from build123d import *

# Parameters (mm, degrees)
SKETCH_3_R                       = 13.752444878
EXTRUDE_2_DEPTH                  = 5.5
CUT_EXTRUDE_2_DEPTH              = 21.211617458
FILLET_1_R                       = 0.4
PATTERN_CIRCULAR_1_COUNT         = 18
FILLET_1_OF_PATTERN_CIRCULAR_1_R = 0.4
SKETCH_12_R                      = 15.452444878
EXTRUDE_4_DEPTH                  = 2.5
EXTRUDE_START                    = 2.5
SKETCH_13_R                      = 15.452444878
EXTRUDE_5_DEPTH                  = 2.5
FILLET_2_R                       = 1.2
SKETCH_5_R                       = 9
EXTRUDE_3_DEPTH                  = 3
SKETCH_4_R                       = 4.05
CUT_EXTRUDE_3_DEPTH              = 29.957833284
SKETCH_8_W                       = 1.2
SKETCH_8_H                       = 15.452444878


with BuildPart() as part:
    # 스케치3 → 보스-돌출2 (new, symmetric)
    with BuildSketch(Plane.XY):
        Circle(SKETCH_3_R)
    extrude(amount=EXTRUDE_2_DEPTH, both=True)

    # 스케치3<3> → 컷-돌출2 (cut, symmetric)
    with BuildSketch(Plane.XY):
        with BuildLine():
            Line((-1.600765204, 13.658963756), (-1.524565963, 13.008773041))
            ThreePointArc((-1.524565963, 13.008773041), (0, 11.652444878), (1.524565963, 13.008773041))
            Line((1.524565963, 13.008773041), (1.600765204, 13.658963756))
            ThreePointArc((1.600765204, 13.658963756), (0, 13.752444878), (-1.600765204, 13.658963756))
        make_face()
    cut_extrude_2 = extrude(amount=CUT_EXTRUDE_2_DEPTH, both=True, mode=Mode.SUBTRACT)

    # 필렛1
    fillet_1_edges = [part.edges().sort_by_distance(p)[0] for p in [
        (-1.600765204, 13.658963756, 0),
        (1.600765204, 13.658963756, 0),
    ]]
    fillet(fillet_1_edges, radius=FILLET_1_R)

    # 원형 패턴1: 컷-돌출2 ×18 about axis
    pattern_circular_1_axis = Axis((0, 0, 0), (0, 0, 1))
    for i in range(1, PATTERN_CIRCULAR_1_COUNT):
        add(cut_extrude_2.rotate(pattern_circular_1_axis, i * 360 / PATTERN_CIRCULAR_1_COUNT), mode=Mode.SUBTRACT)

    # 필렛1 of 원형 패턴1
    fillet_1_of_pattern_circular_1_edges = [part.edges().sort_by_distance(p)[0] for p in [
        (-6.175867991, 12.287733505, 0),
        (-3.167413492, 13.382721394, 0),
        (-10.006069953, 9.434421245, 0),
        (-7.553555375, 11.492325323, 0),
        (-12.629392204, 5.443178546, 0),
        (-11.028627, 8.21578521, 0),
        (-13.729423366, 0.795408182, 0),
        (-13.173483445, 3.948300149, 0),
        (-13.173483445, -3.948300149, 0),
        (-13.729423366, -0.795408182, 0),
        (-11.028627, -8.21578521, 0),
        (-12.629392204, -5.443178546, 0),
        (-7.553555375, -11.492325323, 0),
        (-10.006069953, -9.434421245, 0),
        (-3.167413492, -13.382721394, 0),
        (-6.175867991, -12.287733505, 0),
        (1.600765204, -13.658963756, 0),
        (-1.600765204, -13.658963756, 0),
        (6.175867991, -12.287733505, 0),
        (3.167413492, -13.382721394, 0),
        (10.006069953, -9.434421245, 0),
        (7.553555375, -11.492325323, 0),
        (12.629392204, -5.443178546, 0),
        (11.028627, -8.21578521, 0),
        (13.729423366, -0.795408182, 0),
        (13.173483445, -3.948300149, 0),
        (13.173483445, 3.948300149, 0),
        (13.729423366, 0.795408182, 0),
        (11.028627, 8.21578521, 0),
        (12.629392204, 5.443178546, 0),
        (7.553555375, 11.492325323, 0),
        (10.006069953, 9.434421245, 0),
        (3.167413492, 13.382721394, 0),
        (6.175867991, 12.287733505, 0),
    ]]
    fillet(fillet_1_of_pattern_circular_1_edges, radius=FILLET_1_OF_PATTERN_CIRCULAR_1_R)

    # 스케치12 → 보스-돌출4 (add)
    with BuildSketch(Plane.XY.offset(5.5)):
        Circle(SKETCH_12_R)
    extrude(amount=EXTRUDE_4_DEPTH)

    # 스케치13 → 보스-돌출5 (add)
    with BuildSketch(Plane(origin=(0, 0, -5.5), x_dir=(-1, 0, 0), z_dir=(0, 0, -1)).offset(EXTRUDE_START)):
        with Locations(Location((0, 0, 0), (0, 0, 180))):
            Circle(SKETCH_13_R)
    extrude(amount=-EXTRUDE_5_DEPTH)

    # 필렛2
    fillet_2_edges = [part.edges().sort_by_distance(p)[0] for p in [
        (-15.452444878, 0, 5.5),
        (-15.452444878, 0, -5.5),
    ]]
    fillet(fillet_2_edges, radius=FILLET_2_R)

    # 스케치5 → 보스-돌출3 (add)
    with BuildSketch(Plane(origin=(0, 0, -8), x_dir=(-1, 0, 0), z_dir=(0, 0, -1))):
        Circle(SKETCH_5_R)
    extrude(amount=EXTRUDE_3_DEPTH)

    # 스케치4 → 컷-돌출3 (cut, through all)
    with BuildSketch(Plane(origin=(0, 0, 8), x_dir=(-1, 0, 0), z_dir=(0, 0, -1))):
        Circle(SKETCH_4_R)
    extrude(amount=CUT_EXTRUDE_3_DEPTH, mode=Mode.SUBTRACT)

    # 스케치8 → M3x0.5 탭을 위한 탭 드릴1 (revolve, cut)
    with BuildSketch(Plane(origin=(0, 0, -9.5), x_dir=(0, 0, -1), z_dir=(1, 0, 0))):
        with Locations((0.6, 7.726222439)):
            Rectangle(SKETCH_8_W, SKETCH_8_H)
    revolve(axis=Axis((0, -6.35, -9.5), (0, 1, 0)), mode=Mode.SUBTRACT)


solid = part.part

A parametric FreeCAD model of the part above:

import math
import FreeCAD as App
import Part
import Sketcher

V = App.Vector
Q = App.Units.Quantity


def edges_at(feature, points):
    """Names of the edges that pass closest to the given points."""
    edges = feature.Shape.Edges
    near = lambda p: min(range(len(edges)), key=lambda i: edges[i].distToShape(Part.Vertex(*p))[0])
    return sorted({f"Edge{near(p) + 1}" for p in points})


def add_polygon(sketch, points):
    """Adds a closed chain of lines whose ends are joined by coincident constraints."""
    first, n = sketch.GeometryCount, len(points)
    for a, b in zip(points, points[1:] + points[:1]):
        sketch.addGeometry(Part.LineSegment(App.Vector(*a, 0), App.Vector(*b, 0)), False)
    for i in range(n):
        sketch.addConstraint(Sketcher.Constraint("Coincident", first + i, 2, first + (i + 1) % n, 1))

doc = App.newDocument("Part")
body = doc.addObject("PartDesign::Body", "Body")

sketch1 = doc.addObject("Sketcher::SketchObject", "Sketch")
body.addObject(sketch1)
sketch1.AttachmentSupport = (doc.XY_Plane, [""])
sketch1.MapMode = "FlatFace"
sketch1.addGeometry(Part.Circle(V(0, 0, 0), V(0, 0, 1), 13.752445), False)
sketch1.addConstraint([
    Sketcher.Constraint("Coincident", 0, 3, -1, 1),
    Sketcher.Constraint("Diameter", 0, Q("27.50489 mm")),
])
pad1 = doc.addObject("PartDesign::Pad", "Pad")
body.addObject(pad1)
pad1.Profile = sketch1
pad1.Length = 11
pad1.Midplane = True

sketch2 = doc.addObject("Sketcher::SketchObject", "Sketch001")
body.addObject(sketch2)
sketch2.AttachmentSupport = (doc.XY_Plane, [""])
sketch2.MapMode = "FlatFace"
sketch2.addGeometry([
    Part.LineSegment(V(-1.600765, 13.658964, 0), V(-1.524566, 13.008773, 0)),
    Part.ArcOfCircle(Part.Circle(V(0, 13.187445, 0), V(0, 0, 1), 1.535), math.radians(-173.3157), math.radians(-6.6843)),
    Part.LineSegment(V(1.524566, 13.008773, 0), V(1.600765, 13.658964, 0)),
    Part.ArcOfCircle(Part.Circle(V(0, 0, 0), V(0, 0, 1), 13.752445), math.radians(83.3157), math.radians(96.6843)),
], False)
sketch2.addConstraint([
    Sketcher.Constraint("Tangent", 0, 2, 1, 1),
    Sketcher.Constraint("Tangent", 1, 2, 2, 1),
    Sketcher.Constraint("Coincident", 2, 2, 3, 1),
    Sketcher.Constraint("Coincident", 3, 2, 0, 1),
    Sketcher.Constraint("Coincident", 3, 3, -1, 1),
    Sketcher.Constraint("Symmetric", 0, 2, 1, 2, -2),
    Sketcher.Constraint("Radius", 1, Q("1.535 mm")),
    Sketcher.Constraint("Radius", 3, Q("13.752445 mm")),
    Sketcher.Constraint("DistanceX", 1, 2, 2, 2, Q("0.076199 mm")),
    Sketcher.Constraint("Distance", 0, Q("0.654641 mm")),
])
pocket1 = doc.addObject("PartDesign::Pocket", "Pocket")
body.addObject(pocket1)
pocket1.Profile = sketch2
pocket1.Length = 42.423235
pocket1.Midplane = True
doc.recompute()

fillet = doc.addObject("PartDesign::Fillet", "Fillet")
body.addObject(fillet)
fillet.Base = (pocket1, edges_at(pocket1, [(-1.601, 13.659, 0), (1.601, 13.659, 0)]))
fillet.Radius = 0.4
doc.recompute()

polarpattern = doc.addObject("PartDesign::PolarPattern", "PolarPattern")
body.addObject(polarpattern)
polarpattern.Originals = [pocket1]
polarpattern.Axis = (doc.Z_Axis, [""])
polarpattern.Angle = 360
polarpattern.Occurrences = 18
body.Tip = polarpattern
doc.recompute()

fillet2 = doc.addObject("PartDesign::Fillet", "Fillet001")
body.addObject(fillet2)
fillet2.Base = (polarpattern, edges_at(polarpattern, [
    (-6.176, 12.288, 0),
    (-3.167, 13.383, 0),
    (-10.006, 9.434, 0),
    (-7.554, 11.492, 0),
    (-12.629, 5.443, 0),
    (-11.029, 8.216, 0),
    (-13.729, 0.795, 0),
    (-13.173, 3.948, 0),
    (-13.173, -3.948, 0),
    (-13.729, -0.795, 0),
    (-11.029, -8.216, 0),
    (-12.629, -5.443, 0),
    (-7.554, -11.492, 0),
    (-10.006, -9.434, 0),
    (-3.167, -13.383, 0),
    (-6.176, -12.288, 0),
    (1.601, -13.659, 0),
    (-1.601, -13.659, 0),
    (6.176, -12.288, 0),
    (3.167, -13.383, 0),
    (10.006, -9.434, 0),
    (7.554, -11.492, 0),
    (12.629, -5.443, 0),
    (11.029, -8.216, 0),
    (13.729, -0.795, 0),
    (13.173, -3.948, 0),
    (13.173, 3.948, 0),
    (13.729, 0.795, 0),
    (11.029, 8.216, 0),
    (12.629, 5.443, 0),
    (7.554, 11.492, 0),
    (10.006, 9.434, 0),
    (3.167, 13.383, 0),
    (6.176, 12.288, 0),
]))
fillet2.Radius = 0.4

sketch3 = doc.addObject("Sketcher::SketchObject", "Sketch002")
body.addObject(sketch3)
sketch3.AttachmentSupport = (doc.XY_Plane, [""])
sketch3.MapMode = "FlatFace"
sketch3.AttachmentOffset = App.Placement(V(0, 0, 5.5), App.Rotation())
sketch3.addGeometry(Part.Circle(V(0, 0, 0), V(0, 0, 1), 15.452445), False)
sketch3.addConstraint([
    Sketcher.Constraint("Coincident", 0, 3, -1, 1),
    Sketcher.Constraint("Diameter", 0, Q("30.90489 mm")),
])
pad2 = doc.addObject("PartDesign::Pad", "Pad001")
body.addObject(pad2)
pad2.Profile = sketch3
pad2.Length = 2.5

sketch4 = doc.addObject("Sketcher::SketchObject", "Sketch003")
body.addObject(sketch4)
sketch4.AttachmentSupport = (doc.XY_Plane, [""])
sketch4.MapMode = "FlatFace"
sketch4.AttachmentOffset = App.Placement(V(0, 0, -8), App.Rotation())
sketch4.addGeometry(Part.Circle(V(0, 0, 0), V(0, 0, 1), 15.452445), False)
sketch4.addConstraint([
    Sketcher.Constraint("Coincident", 0, 3, -1, 1),
    Sketcher.Constraint("Diameter", 0, Q("30.90489 mm")),
])
pad3 = doc.addObject("PartDesign::Pad", "Pad002")
body.addObject(pad3)
pad3.Profile = sketch4
pad3.Length = 2.5
doc.recompute()

fillet3 = doc.addObject("PartDesign::Fillet", "Fillet002")
body.addObject(fillet3)
fillet3.Base = (pad3, edges_at(pad3, [(-15.452, 0, 5.5), (-15.452, 0, -5.5)]))
fillet3.Radius = 1.2

sketch5 = doc.addObject("Sketcher::SketchObject", "Sketch004")
body.addObject(sketch5)
sketch5.AttachmentSupport = (doc.XY_Plane, [""])
sketch5.MapMode = "FlatFace"
sketch5.AttachmentOffset = App.Placement(V(0, 0, -8), App.Rotation())
sketch5.addGeometry(Part.Circle(V(0, 0, 0), V(0, 0, 1), 9), False)
sketch5.addConstraint([
    Sketcher.Constraint("Coincident", 0, 3, -1, 1),
    Sketcher.Constraint("Diameter", 0, Q("18 mm")),
])
pad4 = doc.addObject("PartDesign::Pad", "Pad003")
body.addObject(pad4)
pad4.Profile = sketch5
pad4.Length = 3
pad4.Reversed = True

sketch6 = doc.addObject("Sketcher::SketchObject", "Sketch005")
body.addObject(sketch6)
sketch6.AttachmentSupport = (doc.XY_Plane, [""])
sketch6.MapMode = "FlatFace"
sketch6.AttachmentOffset = App.Placement(V(0, 0, 8), App.Rotation())
sketch6.addGeometry(Part.Circle(V(0, 0, 0), V(0, 0, 1), 4.05), False)
sketch6.addConstraint([
    Sketcher.Constraint("Coincident", 0, 3, -1, 1),
    Sketcher.Constraint("Diameter", 0, Q("8.1 mm")),
])
pocket2 = doc.addObject("PartDesign::Pocket", "Pocket001")
body.addObject(pocket2)
pocket2.Profile = sketch6
pocket2.Type = "ThroughAll"

sketch7 = doc.addObject("Sketcher::SketchObject", "Sketch006")
body.addObject(sketch7)
sketch7.AttachmentSupport = (doc.YZ_Plane, [""])
sketch7.MapMode = "FlatFace"
add_polygon(sketch7, [(15.452445, -9.5), (0, -9.5), (0, -10.7), (15.452445, -10.7)])
sketch7.addGeometry(Part.LineSegment(V(0, -9.5, 0), V(15.452445, -9.5, 0)), True)
sketch7.addConstraint([
    Sketcher.Constraint("Horizontal", 0),
    Sketcher.Constraint("Vertical", 1),
    Sketcher.Constraint("Horizontal", 2),
    Sketcher.Constraint("Vertical", 3),
    Sketcher.Constraint("Horizontal", 4),
    Sketcher.Constraint("Coincident", 4, 1, 0, 2),
    Sketcher.Constraint("PointOnObject", 0, 2, -2),
    Sketcher.Constraint("Vertical", 2, 2, 4, 2),
    Sketcher.Constraint("DistanceY", 1, 2, 1, 1, Q("1.2 mm")),
    Sketcher.Constraint("DistanceY", 0, 2, -1, 1, Q("9.5 mm")),
    Sketcher.Constraint("DistanceX", 0, 2, 0, 1, Q("15.452445 mm")),
])
groove = doc.addObject("PartDesign::Groove", "Groove")
body.addObject(groove)
groove.Profile = sketch7
groove.ReferenceAxis = (sketch7, ["Axis0"])
groove.Angle = 360

doc.recompute()
